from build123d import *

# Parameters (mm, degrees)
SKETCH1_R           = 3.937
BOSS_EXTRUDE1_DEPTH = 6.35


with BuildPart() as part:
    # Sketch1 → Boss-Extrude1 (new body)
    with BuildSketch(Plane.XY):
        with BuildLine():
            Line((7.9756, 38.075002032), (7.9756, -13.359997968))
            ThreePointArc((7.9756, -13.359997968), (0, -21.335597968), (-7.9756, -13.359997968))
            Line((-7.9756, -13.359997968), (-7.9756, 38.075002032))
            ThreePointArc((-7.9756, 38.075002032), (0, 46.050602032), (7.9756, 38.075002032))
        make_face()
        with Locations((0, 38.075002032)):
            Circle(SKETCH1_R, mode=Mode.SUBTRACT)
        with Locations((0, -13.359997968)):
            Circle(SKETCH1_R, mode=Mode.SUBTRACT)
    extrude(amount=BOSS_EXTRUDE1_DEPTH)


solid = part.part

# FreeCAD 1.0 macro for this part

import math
import FreeCAD as App
import Part
import Sketcher
from FreeCAD import Vector
Q = App.Units.Quantity

doc = App.newDocument("Part")
params = doc.addObject("Spreadsheet::Sheet", "Params")
for row, (alias, value) in enumerate([
    ("sketch1_diameter", "0.31 in"),
    ("sketch1_radius", "0.314 in"),
    ("sketch1_height", "2.025 in"),
    ("pad1_length", "0.25 in"),
], start=1):
    params.set(f"A{row}", alias)
    params.set(f"B{row}", "=" + value)
    params.setAlias(f"B{row}", alias)

body = doc.addObject("PartDesign::Body", "Body")

# Sketch on XY plane
sketch1 = body.newObject("Sketcher::SketchObject", "Sketch")
sketch1.AttachmentSupport = (doc.getObject("XY_Plane"), [""])
sketch1.MapMode = "FlatFace"
sketch1.addGeometry(Part.LineSegment(Vector(7.9756, -13.359998, 0), Vector(7.9756, 38.075002, 0)), False)
sketch1.addGeometry(Part.ArcOfCircle(Part.Circle(Vector(0, 38.075002, 0), Vector(0, 0, 1), 7.9756), math.radians(0), math.radians(180)), False)
sketch1.addGeometry(Part.LineSegment(Vector(-7.9756, 38.075002, 0), Vector(-7.9756, -13.359998, 0)), False)
sketch1.addGeometry(Part.ArcOfCircle(Part.Circle(Vector(0, -13.359998, 0), Vector(0, 0, 1), 7.9756), math.radians(180), math.radians(360)), False)
sketch1.addGeometry(Part.Circle(Vector(0, -13.359998, 0), Vector(0, 0, 1), 3.937), False)
sketch1.addGeometry(Part.Circle(Vector(0, 38.075002, 0), Vector(0, 0, 1), 3.937), False)
sketch1.addConstraint(Sketcher.Constraint("Tangent", 0, 2, 1, 1))
sketch1.addConstraint(Sketcher.Constraint("Tangent", 1, 2, 2, 1))
sketch1.addConstraint(Sketcher.Constraint("Tangent", 2, 2, 3, 1))
sketch1.addConstraint(Sketcher.Constraint("Tangent", 3, 2, 0, 1))
sketch1.addConstraint(Sketcher.Constraint("Vertical", 0))
sketch1.addConstraint(Sketcher.Constraint("Vertical", 2))
sketch1.addConstraint(Sketcher.Constraint("Coincident", 4, 3, 3, 3))
sketch1.addConstraint(Sketcher.Constraint("Coincident", 5, 3, 1, 3))
sketch1.addConstraint(Sketcher.Constraint("Equal", 4, 5))
sketch1.addConstraint(Sketcher.Constraint("PointOnObject", 1, 3, -2))
sketch1.addConstraint(Sketcher.Constraint("Diameter", 4, Q("0.31 in")))
sketch1.addConstraint(Sketcher.Constraint("Radius", 1, Q("0.314 in")))
sketch1.addConstraint(Sketcher.Constraint("DistanceY", 0, 1, 0, 2, Q("2.025 in")))
sketch1.addConstraint(Sketcher.Constraint("DistanceY", -1, 1, 1, 3, Q("38.075002 mm")))
sketch1.setExpression("Constraints[10]", "Params.sketch1_diameter")
sketch1.setExpression("Constraints[11]", "Params.sketch1_radius")
sketch1.setExpression("Constraints[12]", "Params.sketch1_height")
pad1 = body.newObject("PartDesign::Pad", "Pad")
pad1.Profile = sketch1
pad1.setExpression("Length", "Params.pad1_length")

doc.recompute()
